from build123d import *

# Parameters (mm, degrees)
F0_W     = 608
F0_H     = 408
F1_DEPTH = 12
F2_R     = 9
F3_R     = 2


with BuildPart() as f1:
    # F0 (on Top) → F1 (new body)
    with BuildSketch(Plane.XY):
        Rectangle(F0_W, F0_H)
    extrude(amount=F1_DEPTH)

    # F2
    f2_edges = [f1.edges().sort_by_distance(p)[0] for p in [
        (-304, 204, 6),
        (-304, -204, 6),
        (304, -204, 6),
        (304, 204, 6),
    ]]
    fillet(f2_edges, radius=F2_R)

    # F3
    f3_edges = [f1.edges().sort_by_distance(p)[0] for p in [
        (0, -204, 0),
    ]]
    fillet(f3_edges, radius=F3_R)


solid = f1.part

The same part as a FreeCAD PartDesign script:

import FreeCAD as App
import Part
import Sketcher
from FreeCAD import Vector
Q = App.Units.Quantity


def edges_at(feature, points):
    """Names of the edges that pass closest to the given points."""
    edges = feature.Shape.Edges
    near = lambda p: min(range(len(edges)), key=lambda i: edges[i].distToShape(Part.Vertex(*p))[0])
    return sorted({f"Edge{near(p) + 1}" for p in points})

doc = App.newDocument("Part")
params = doc.addObject("Spreadsheet::Sheet", "Params")
for row, (alias, value) in enumerate([
    ("sketch1_width", "608 mm"),
    ("sketch1_height", "408 mm"),
    ("pad1_length", "12 mm"),
    ("fillet_radius", "9 mm"),
    ("fillet2_radius", "2 mm"),
], start=1):
    params.set(f"A{row}", alias)
    params.set(f"B{row}", "=" + value)
    params.setAlias(f"B{row}", alias)

body = doc.addObject("PartDesign::Body", "Body")

# Sketch on XY plane
sketch1 = body.newObject("Sketcher::SketchObject", "Sketch")
sketch1.AttachmentSupport = (doc.getObject("XY_Plane"), [""])
sketch1.MapMode = "FlatFace"
sketch1.addGeometry([
    Part.LineSegment(Vector(-304, 204, 0), Vector(-304, -204, 0)),
    Part.LineSegment(Vector(-304, -204, 0), Vector(304, -204, 0)),
    Part.LineSegment(Vector(304, -204, 0), Vector(304, 204, 0)),
    Part.LineSegment(Vector(304, 204, 0), Vector(-304, 204, 0)),
], False)
sketch1.addConstraint([
    Sketcher.Constraint("Coincident", 0, 2, 1, 1),
    Sketcher.Constraint("Coincident", 1, 2, 2, 1),
    Sketcher.Constraint("Coincident", 2, 2, 3, 1),
    Sketcher.Constraint("Coincident", 3, 2, 0, 1),
    Sketcher.Constraint("Vertical", 0),
    Sketcher.Constraint("Horizontal", 1),
    Sketcher.Constraint("Vertical", 2),
    Sketcher.Constraint("Horizontal", 3),
    Sketcher.Constraint("Symmetric", 0, 2, 2, 2, -1, 1),
    Sketcher.Constraint("DistanceX", 1, 1, 1, 2, Q("608 mm")),
    Sketcher.Constraint("DistanceY", 0, 2, 0, 1, Q("408 mm")),
])
sketch1.setExpression("Constraints[9]", "Params.sketch1_width")
sketch1.setExpression("Constraints[10]", "Params.sketch1_height")
pad1 = body.newObject("PartDesign::Pad", "Pad")
pad1.Profile = sketch1
pad1.setExpression("Length", "Params.pad1_length")
doc.recompute()

fillet = body.newObject("PartDesign::Fillet", "Fillet")
fillet.Base = (pad1, edges_at(pad1, [
    (-304, 204, 6),
    (-304, -204, 6),
    (304, -204, 6),
    (304, 204, 6),
]))
fillet.setExpression("Radius", "Params.fillet_radius")
doc.recompute()

fillet2 = body.newObject("PartDesign::Fillet", "Fillet001")
fillet2.Base = (fillet, edges_at(fillet, [(0, -204, 0)]))
fillet2.setExpression("Radius", "Params.fillet2_radius")

doc.recompute()
